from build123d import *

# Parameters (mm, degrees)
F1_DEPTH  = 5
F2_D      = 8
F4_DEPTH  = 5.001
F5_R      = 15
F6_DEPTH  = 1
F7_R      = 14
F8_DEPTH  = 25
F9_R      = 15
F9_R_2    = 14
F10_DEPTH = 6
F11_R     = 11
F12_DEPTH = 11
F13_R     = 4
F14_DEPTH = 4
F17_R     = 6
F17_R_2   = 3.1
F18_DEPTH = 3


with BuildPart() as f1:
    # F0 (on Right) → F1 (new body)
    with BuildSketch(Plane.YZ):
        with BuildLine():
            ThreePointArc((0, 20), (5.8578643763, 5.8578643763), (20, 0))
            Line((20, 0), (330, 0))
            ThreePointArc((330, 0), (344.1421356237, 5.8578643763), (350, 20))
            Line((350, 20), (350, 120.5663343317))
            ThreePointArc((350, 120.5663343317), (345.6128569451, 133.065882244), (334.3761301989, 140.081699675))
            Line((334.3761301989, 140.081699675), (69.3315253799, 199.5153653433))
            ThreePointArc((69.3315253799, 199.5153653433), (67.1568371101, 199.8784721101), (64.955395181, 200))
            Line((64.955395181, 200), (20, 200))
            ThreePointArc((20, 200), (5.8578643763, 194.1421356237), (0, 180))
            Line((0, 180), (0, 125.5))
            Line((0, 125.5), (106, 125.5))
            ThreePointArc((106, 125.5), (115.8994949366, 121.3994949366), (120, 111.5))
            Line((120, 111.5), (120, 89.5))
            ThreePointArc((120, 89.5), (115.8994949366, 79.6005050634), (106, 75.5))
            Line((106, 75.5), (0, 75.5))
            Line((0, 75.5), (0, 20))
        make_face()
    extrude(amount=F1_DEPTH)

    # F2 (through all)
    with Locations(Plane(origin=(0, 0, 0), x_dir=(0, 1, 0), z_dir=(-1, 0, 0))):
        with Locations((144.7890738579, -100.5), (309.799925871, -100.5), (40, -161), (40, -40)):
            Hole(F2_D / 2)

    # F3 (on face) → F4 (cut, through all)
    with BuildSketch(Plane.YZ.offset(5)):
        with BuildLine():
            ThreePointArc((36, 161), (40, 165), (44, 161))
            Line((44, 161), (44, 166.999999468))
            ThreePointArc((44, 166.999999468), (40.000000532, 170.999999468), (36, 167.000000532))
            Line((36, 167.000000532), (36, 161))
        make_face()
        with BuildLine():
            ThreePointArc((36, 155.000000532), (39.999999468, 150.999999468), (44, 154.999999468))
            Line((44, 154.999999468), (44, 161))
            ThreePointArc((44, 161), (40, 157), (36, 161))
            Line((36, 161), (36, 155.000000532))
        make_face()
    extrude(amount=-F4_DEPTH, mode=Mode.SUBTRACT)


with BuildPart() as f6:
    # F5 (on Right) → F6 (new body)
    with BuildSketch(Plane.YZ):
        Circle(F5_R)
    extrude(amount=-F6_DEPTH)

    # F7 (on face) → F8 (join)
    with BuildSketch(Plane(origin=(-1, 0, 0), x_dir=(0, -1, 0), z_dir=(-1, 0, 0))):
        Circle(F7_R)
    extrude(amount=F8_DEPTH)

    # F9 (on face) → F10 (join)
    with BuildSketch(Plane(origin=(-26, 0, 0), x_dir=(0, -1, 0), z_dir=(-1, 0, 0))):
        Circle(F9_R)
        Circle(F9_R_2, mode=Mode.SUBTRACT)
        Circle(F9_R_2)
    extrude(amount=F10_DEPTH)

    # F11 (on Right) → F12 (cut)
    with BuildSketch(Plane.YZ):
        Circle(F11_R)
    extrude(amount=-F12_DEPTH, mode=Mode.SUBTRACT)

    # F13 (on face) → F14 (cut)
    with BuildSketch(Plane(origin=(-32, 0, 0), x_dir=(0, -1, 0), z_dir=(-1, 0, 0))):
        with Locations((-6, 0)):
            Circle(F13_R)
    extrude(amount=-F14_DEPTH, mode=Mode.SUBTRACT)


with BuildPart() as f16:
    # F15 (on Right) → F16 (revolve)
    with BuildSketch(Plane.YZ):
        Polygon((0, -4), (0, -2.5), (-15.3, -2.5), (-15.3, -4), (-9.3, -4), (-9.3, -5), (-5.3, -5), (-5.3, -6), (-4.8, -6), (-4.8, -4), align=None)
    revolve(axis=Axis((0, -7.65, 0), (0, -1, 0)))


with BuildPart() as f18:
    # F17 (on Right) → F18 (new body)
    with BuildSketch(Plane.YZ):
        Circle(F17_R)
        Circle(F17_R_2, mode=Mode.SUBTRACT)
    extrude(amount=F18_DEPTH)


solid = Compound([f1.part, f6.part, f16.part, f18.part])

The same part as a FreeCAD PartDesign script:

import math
import FreeCAD as App
import Part
import Sketcher
from FreeCAD import Vector


def add_polygon(sketch, points):
    """Adds a closed chain of lines whose ends are joined by coincident constraints."""
    first, n = sketch.GeometryCount, len(points)
    for a, b in zip(points, points[1:] + points[:1]):
        sketch.addGeometry(Part.LineSegment(App.Vector(*a, 0), App.Vector(*b, 0)), False)
    for i in range(n):
        sketch.addConstraint(Sketcher.Constraint("Coincident", first + i, 2, first + (i + 1) % n, 1))

doc = App.newDocument("Part")
body = doc.addObject("PartDesign::Body", "Body")

# Sketch on YZ plane
sketch1 = doc.addObject("Sketcher::SketchObject", "Sketch")
body.addObject(sketch1)
sketch1.AttachmentSupport = (doc.YZ_Plane, [""])
sketch1.MapMode = "FlatFace"
sketch1.addGeometry(Part.ArcOfCircle(Part.Circle(Vector(20, 20, 0), Vector(0, 0, 1), 20), math.radians(180), math.radians(270)), False)
sketch1.addGeometry(Part.LineSegment(Vector(20, 0, 0), Vector(330, 0, 0)), False)
sketch1.addGeometry(Part.ArcOfCircle(Part.Circle(Vector(330, 20, 0), Vector(0, 0, 1), 20), math.radians(-90), math.radians(0)), False)
sketch1.addGeometry(Part.LineSegment(Vector(350, 20, 0), Vector(350, 120.566334, 0)), False)
sketch1.addGeometry(Part.ArcOfCircle(Part.Circle(Vector(330, 120.566334, 0), Vector(0, 0, 1), 20), math.radians(0), math.radians(77.361057)), False)
sketch1.addGeometry(Part.LineSegment(Vector(334.37613, 140.0817, 0), Vector(69.331525, 199.515365, 0)), False)
sketch1.addGeometry(Part.ArcOfCircle(Part.Circle(Vector(64.955395, 180, 0), Vector(0, 0, 1), 20), math.radians(77.361057), math.radians(90)), False)
sketch1.addGeometry(Part.LineSegment(Vector(64.955395, 200, 0), Vector(20, 200, 0)), False)
sketch1.addGeometry(Part.ArcOfCircle(Part.Circle(Vector(20, 180, 0), Vector(0, 0, 1), 20), math.radians(90), math.radians(180)), False)
sketch1.addGeometry(Part.LineSegment(Vector(0, 180, 0), Vector(0, 125.5, 0)), False)
sketch1.addGeometry(Part.LineSegment(Vector(0, 125.5, 0), Vector(106, 125.5, 0)), False)
sketch1.addGeometry(Part.ArcOfCircle(Part.Circle(Vector(106, 111.5, 0), Vector(0, 0, 1), 14), math.radians(0), math.radians(90)), False)
sketch1.addGeometry(Part.LineSegment(Vector(120, 111.5, 0), Vector(120, 89.5, 0)), False)
sketch1.addGeometry(Part.ArcOfCircle(Part.Circle(Vector(106, 89.5, 0), Vector(0, 0, 1), 14), math.radians(-90), math.radians(0)), False)
sketch1.addGeometry(Part.LineSegment(Vector(106, 75.5, 0), Vector(0, 75.5, 0)), False)
sketch1.addGeometry(Part.LineSegment(Vector(0, 75.5, 0), Vector(0, 20, 0)), False)
sketch1.addConstraint(Sketcher.Constraint("Tangent", 0, 2, 1, 1))
sketch1.addConstraint(Sketcher.Constraint("Tangent", 1, 2, 2, 1))
sketch1.addConstraint(Sketcher.Constraint("Tangent", 2, 2, 3, 1))
sketch1.addConstraint(Sketcher.Constraint("Tangent", 3, 2, 4, 1))
sketch1.addConstraint(Sketcher.Constraint("Tangent", 4, 2, 5, 1))
sketch1.addConstraint(Sketcher.Constraint("Tangent", 5, 2, 6, 1))
sketch1.addConstraint(Sketcher.Constraint("Tangent", 6, 2, 7, 1))
sketch1.addConstraint(Sketcher.Constraint("Tangent", 7, 2, 8, 1))
sketch1.addConstraint(Sketcher.Constraint("Tangent", 8, 2, 9, 1))
sketch1.addConstraint(Sketcher.Constraint("Coincident", 9, 2, 10, 1))
sketch1.addConstraint(Sketcher.Constraint("Tangent", 10, 2, 11, 2))
sketch1.addConstraint(Sketcher.Constraint("Tangent", 11, 1, 12, 1))
sketch1.addConstraint(Sketcher.Constraint("Tangent", 12, 2, 13, 2))
sketch1.addConstraint(Sketcher.Constraint("Tangent", 13, 1, 14, 1))
sketch1.addConstraint(Sketcher.Constraint("Coincident", 14, 2, 15, 1))
sketch1.addConstraint(Sketcher.Constraint("Tangent", 15, 2, 0, 1))
sketch1.addConstraint(Sketcher.Constraint("Horizontal", 1))
sketch1.addConstraint(Sketcher.Constraint("Vertical", 3))
sketch1.addConstraint(Sketcher.Constraint("Horizontal", 7))
sketch1.addConstraint(Sketcher.Constraint("Vertical", 9))
sketch1.addConstraint(Sketcher.Constraint("Horizontal", 10))
sketch1.addConstraint(Sketcher.Constraint("Vertical", 12))
sketch1.addConstraint(Sketcher.Constraint("Horizontal", 14))
sketch1.addConstraint(Sketcher.Constraint("Vertical", 15))
sketch1.addConstraint(Sketcher.Constraint("Equal", 0, 2))
sketch1.addConstraint(Sketcher.Constraint("Equal", 2, 4))
sketch1.addConstraint(Sketcher.Constraint("Equal", 4, 6))
sketch1.addConstraint(Sketcher.Constraint("Equal", 6, 8))
sketch1.addConstraint(Sketcher.Constraint("Equal", 11, 13))
sketch1.addConstraint(Sketcher.Constraint("PointOnObject", 0, 2, -1))
sketch1.addConstraint(Sketcher.Constraint("PointOnObject", 8, 2, -2))
sketch1.addConstraint(Sketcher.Constraint("PointOnObject", 14, 2, -2))
sketch1.addConstraint(Sketcher.Constraint("Radius", 0, 20.0))
sketch1.addConstraint(Sketcher.Constraint("Radius", 11, 14.0))
sketch1.addConstraint(Sketcher.Constraint("DistanceX", 1, 1, 1, 2, 310.0))
sketch1.addConstraint(Sketcher.Constraint("DistanceX", 10, 1, 10, 2, 106.0))
sketch1.addConstraint(Sketcher.Constraint("DistanceY", 12, 2, 12, 1, 22.0))
sketch1.addConstraint(Sketcher.Constraint("DistanceY", 9, 2, 9, 1, 54.5))
sketch1.addConstraint(Sketcher.Constraint("DistanceY", 15, 2, 15, 1, 55.5))
sketch1.addConstraint(Sketcher.Constraint("DistanceY", -1, 1, 4, 2, 140.0817))
sketch1.addConstraint(Sketcher.Constraint("DistanceX", 7, 2, 7, 1, 44.955395))
pad1 = doc.addObject("PartDesign::Pad", "Pad")
body.addObject(pad1)
pad1.Profile = sketch1
pad1.Length = 5

# Sketch on YZ plane
sketch2 = doc.addObject("Sketcher::SketchObject", "Sketch001")
body.addObject(sketch2)
sketch2.AttachmentSupport = (doc.YZ_Plane, [""])
sketch2.MapMode = "FlatFace"
sketch2.addGeometry(Part.Circle(Vector(144.789074, 100.5, 0), Vector(0, 0, 1), 4), False)
sketch2.addGeometry(Part.Circle(Vector(309.799926, 100.5, 0), Vector(0, 0, 1), 4), False)
sketch2.addGeometry(Part.Circle(Vector(40, 161, 0), Vector(0, 0, 1), 4), False)
sketch2.addGeometry(Part.Circle(Vector(40, 40, 0), Vector(0, 0, 1), 4), False)
sketch2.addConstraint(Sketcher.Constraint("Equal", 0, 1))
sketch2.addConstraint(Sketcher.Constraint("Equal", 1, 2))
sketch2.addConstraint(Sketcher.Constraint("Equal", 2, 3))
sketch2.addConstraint(Sketcher.Constraint("Horizontal", 0, 3, 1, 3))
sketch2.addConstraint(Sketcher.Constraint("Vertical", 2, 3, 3, 3))
sketch2.addConstraint(Sketcher.Constraint("Diameter", 0, 8.0))
sketch2.addConstraint(Sketcher.Constraint("DistanceX", -1, 1, 2, 3, 40.0))
sketch2.addConstraint(Sketcher.Constraint("DistanceY", -1, 1, 2, 3, 161.0))
sketch2.addConstraint(Sketcher.Constraint("DistanceY", -1, 1, 3, 3, 40.0))
sketch2.addConstraint(Sketcher.Constraint("DistanceY", -1, 1, 0, 3, 100.5))
sketch2.addConstraint(Sketcher.Constraint("DistanceX", -1, 1, 0, 3, 144.789074))
sketch2.addConstraint(Sketcher.Constraint("DistanceX", -1, 1, 1, 3, 309.799926))
doc.recompute()
hole = doc.addObject("PartDesign::Hole", "Hole")
body.addObject(hole)
hole.Profile = sketch2
hole.ThreadType = "None"
hole.Diameter = 8
hole.DepthType = "ThroughAll"
hole.Reversed = True

# Sketch on YZ plane
sketch3 = doc.addObject("Sketcher::SketchObject", "Sketch002")
body.addObject(sketch3)
sketch3.AttachmentSupport = (doc.YZ_Plane, [""])
sketch3.MapMode = "FlatFace"
sketch3.AttachmentOffset = App.Placement(Vector(0, 0, 5), App.Rotation())
sketch3.addGeometry(Part.ArcOfCircle(Part.Circle(Vector(40, 161, 0), Vector(0, 0, 1), 4), math.radians(0), math.radians(180)), False)
sketch3.addGeometry(Part.LineSegment(Vector(44, 161, 0), Vector(44, 166.999999, 0)), False)
sketch3.addGeometry(Part.ArcOfCircle(Part.Circle(Vector(40, 166.999999, 0), Vector(0, 0, 1), 4), math.radians(0), math.radians(179.999985)), False)
sketch3.addGeometry(Part.LineSegment(Vector(36, 167.000001, 0), Vector(36, 161, 0)), False)
sketch3.addGeometry(Part.ArcOfCircle(Part.Circle(Vector(40, 154.999999, 0), Vector(0, 0, 1), 4), math.radians(179.999985), math.radians(360)), False)
sketch3.addGeometry(Part.LineSegment(Vector(44, 154.999999, 0), Vector(44, 161, 0)), False)
sketch3.addGeometry(Part.ArcOfCircle(Part.Circle(Vector(40, 161, 0), Vector(0, 0, 1), 4), math.radians(180), math.radians(360)), False)
sketch3.addGeometry(Part.LineSegment(Vector(36, 161, 0), Vector(36, 155.000001, 0)), False)
sketch3.addConstraint(Sketcher.Constraint("Tangent", 0, 1, 1, 1))
sketch3.addConstraint(Sketcher.Constraint("Tangent", 1, 2, 2, 1))
sketch3.addConstraint(Sketcher.Constraint("Tangent", 2, 2, 3, 1))
sketch3.addConstraint(Sketcher.Constraint("Tangent", 3, 2, 0, 2))
sketch3.addConstraint(Sketcher.Constraint("Tangent", 4, 2, 5, 1))
sketch3.addConstraint(Sketcher.Constraint("Tangent", 5, 2, 6, 2))
sketch3.addConstraint(Sketcher.Constraint("Tangent", 6, 1, 7, 1))
sketch3.addConstraint(Sketcher.Constraint("Tangent", 7, 2, 4, 1))
sketch3.addConstraint(Sketcher.Constraint("Vertical", 1))
sketch3.addConstraint(Sketcher.Constraint("Vertical", 3))
sketch3.addConstraint(Sketcher.Constraint("Vertical", 5))
sketch3.addConstraint(Sketcher.Constraint("Vertical", 7))
sketch3.addConstraint(Sketcher.Constraint("Coincident", 6, 3, 0, 3))
sketch3.addConstraint(Sketcher.Constraint("Equal", 2, 4))
sketch3.addConstraint(Sketcher.Constraint("Equal", 3, 5))
sketch3.addConstraint(Sketcher.Constraint("Radius", 0, 4.0))
sketch3.addConstraint(Sketcher.Constraint("DistanceY", 1, 1, 1, 2, 5.999999))
sketch3.addConstraint(Sketcher.Constraint("DistanceX", -1, 1, 0, 3, 40.0))
sketch3.addConstraint(Sketcher.Constraint("DistanceY", -1, 1, 0, 3, 161.0))
pocket1 = doc.addObject("PartDesign::Pocket", "Pocket")
body.addObject(pocket1)
pocket1.Profile = sketch3
pocket1.Type = "ThroughAll"
body2 = doc.addObject("PartDesign::Body", "Body001")

# Sketch on YZ plane
sketch4 = doc.addObject("Sketcher::SketchObject", "Sketch003")
body2.addObject(sketch4)
sketch4.AttachmentSupport = (doc.getObject("YZ_Plane001"), [""])
sketch4.MapMode = "FlatFace"
sketch4.addGeometry(Part.Circle(Vector(0, 0, 0), Vector(0, 0, 1), 15), False)
sketch4.addConstraint(Sketcher.Constraint("Coincident", 0, 3, -1, 1))
sketch4.addConstraint(Sketcher.Constraint("Diameter", 0, 30.0))
pad2 = doc.addObject("PartDesign::Pad", "Pad001")
body2.addObject(pad2)
pad2.Profile = sketch4
pad2.Length = 1
pad2.Reversed = True

# Sketch on YZ plane
sketch5 = doc.addObject("Sketcher::SketchObject", "Sketch004")
body2.addObject(sketch5)
sketch5.AttachmentSupport = (doc.getObject("YZ_Plane001"), [""])
sketch5.MapMode = "FlatFace"
sketch5.AttachmentOffset = App.Placement(Vector(0, 0, -1), App.Rotation())
sketch5.addGeometry(Part.Circle(Vector(0, 0, 0), Vector(0, 0, 1), 14), False)
sketch5.addConstraint(Sketcher.Constraint("Coincident", 0, 3, -1, 1))
sketch5.addConstraint(Sketcher.Constraint("Diameter", 0, 28.0))
pad3 = doc.addObject("PartDesign::Pad", "Pad002")
body2.addObject(pad3)
pad3.Profile = sketch5
pad3.Length = 25
pad3.Reversed = True

# Sketch on YZ plane
sketch6 = doc.addObject("Sketcher::SketchObject", "Sketch005")
body2.addObject(sketch6)
sketch6.AttachmentSupport = (doc.getObject("YZ_Plane001"), [""])
sketch6.MapMode = "FlatFace"
sketch6.AttachmentOffset = App.Placement(Vector(0, 0, -26), App.Rotation())
sketch6.addGeometry(Part.Circle(Vector(0, 0, 0), Vector(0, 0, 1), 15), False)
sketch6.addConstraint(Sketcher.Constraint("Coincident", 0, 3, -1, 1))
sketch6.addConstraint(Sketcher.Constraint("Diameter", 0, 30.0))
pad4 = doc.addObject("PartDesign::Pad", "Pad003")
body2.addObject(pad4)
pad4.Profile = sketch6
pad4.Length = 6
pad4.Reversed = True

# Sketch on YZ plane
sketch7 = doc.addObject("Sketcher::SketchObject", "Sketch006")
body2.addObject(sketch7)
sketch7.AttachmentSupport = (doc.getObject("YZ_Plane001"), [""])
sketch7.MapMode = "FlatFace"
sketch7.addGeometry(Part.Circle(Vector(0, 0, 0), Vector(0, 0, 1), 11), False)
sketch7.addConstraint(Sketcher.Constraint("Coincident", 0, 3, -1, 1))
sketch7.addConstraint(Sketcher.Constraint("Diameter", 0, 22.0))
pocket2 = doc.addObject("PartDesign::Pocket", "Pocket001")
body2.addObject(pocket2)
pocket2.Profile = sketch7
pocket2.Length = 11

# Sketch on YZ plane
sketch8 = doc.addObject("Sketcher::SketchObject", "Sketch007")
body2.addObject(sketch8)
sketch8.AttachmentSupport = (doc.getObject("YZ_Plane001"), [""])
sketch8.MapMode = "FlatFace"
sketch8.AttachmentOffset = App.Placement(Vector(0, 0, -32), App.Rotation())
sketch8.addGeometry(Part.Circle(Vector(6, 0, 0), Vector(0, 0, 1), 4), False)
sketch8.addConstraint(Sketcher.Constraint("PointOnObject", 0, 3, -1))
sketch8.addConstraint(Sketcher.Constraint("Diameter", 0, 8.0))
sketch8.addConstraint(Sketcher.Constraint("DistanceX", -1, 1, 0, 3, 6.0))
pocket3 = doc.addObject("PartDesign::Pocket", "Pocket002")
body2.addObject(pocket3)
pocket3.Profile = sketch8
pocket3.Length = 4
pocket3.Reversed = True
body3 = doc.addObject("PartDesign::Body", "Body002")

# Sketch on YZ plane
sketch9 = doc.addObject("Sketcher::SketchObject", "Sketch008")
body3.addObject(sketch9)
sketch9.AttachmentSupport = (doc.getObject("YZ_Plane002"), [""])
sketch9.MapMode = "FlatFace"
add_polygon(sketch9, [(0, -4), (0, -2.5), (-15.3, -2.5), (-15.3, -4), (-9.3, -4), (-9.3, -5), (-5.3, -5), (-5.3, -6), (-4.8, -6), (-4.8, -4)])  # lines 0-9
sketch9.addConstraint(Sketcher.Constraint("Vertical", 0))
sketch9.addConstraint(Sketcher.Constraint("Horizontal", 1))
sketch9.addConstraint(Sketcher.Constraint("Vertical", 2))
sketch9.addConstraint(Sketcher.Constraint("Horizontal", 3))
sketch9.addConstraint(Sketcher.Constraint("Vertical", 4))
sketch9.addConstraint(Sketcher.Constraint("Horizontal", 5))
sketch9.addConstraint(Sketcher.Constraint("Vertical", 6))
sketch9.addConstraint(Sketcher.Constraint("Horizontal", 7))
sketch9.addConstraint(Sketcher.Constraint("Vertical", 8))
sketch9.addConstraint(Sketcher.Constraint("Horizontal", 9))
sketch9.addConstraint(Sketcher.Constraint("PointOnObject", 0, 2, -2))
sketch9.addConstraint(Sketcher.Constraint("Horizontal", 3, 2, 8, 2))
sketch9.addConstraint(Sketcher.Constraint("Equal", 4, 6))
sketch9.addConstraint(Sketcher.Constraint("DistanceX", 3, 1, 3, 2, 6.0))
sketch9.addConstraint(Sketcher.Constraint("DistanceX", 5, 1, 5, 2, 4.0))
sketch9.addConstraint(Sketcher.Constraint("DistanceY", 4, 2, 4, 1, 1.0))
sketch9.addConstraint(Sketcher.Constraint("DistanceX", 1, 2, 1, 1, 15.3))
sketch9.addConstraint(Sketcher.Constraint("DistanceX", 7, 1, 7, 2, 0.5))
sketch9.addConstraint(Sketcher.Constraint("DistanceY", 0, 1, 0, 2, 1.5))
sketch9.addConstraint(Sketcher.Constraint("DistanceY", 2, 2, -1, 1, 4.0))
revolution = doc.addObject("PartDesign::Revolution", "Revolution")
body3.addObject(revolution)
revolution.Profile = sketch9
revolution.ReferenceAxis = (sketch9, ["H_Axis"])
revolution.Angle = 360
body4 = doc.addObject("PartDesign::Body", "Body003")

# Sketch on YZ plane
sketch10 = doc.addObject("Sketcher::SketchObject", "Sketch009")
body4.addObject(sketch10)
sketch10.AttachmentSupport = (doc.getObject("YZ_Plane003"), [""])
sketch10.MapMode = "FlatFace"
sketch10.addGeometry(Part.Circle(Vector(0, 0, 0), Vector(0, 0, 1), 6), False)
sketch10.addGeometry(Part.Circle(Vector(0, 0, 0), Vector(0, 0, 1), 3.1), False)
sketch10.addConstraint(Sketcher.Constraint("Coincident", 0, 3, -1, 1))
sketch10.addConstraint(Sketcher.Constraint("Coincident", 1, 3, -1, 1))
sketch10.addConstraint(Sketcher.Constraint("Diameter", 0, 12.0))
sketch10.addConstraint(Sketcher.Constraint("Diameter", 1, 6.2))
pad5 = doc.addObject("PartDesign::Pad", "Pad004")
body4.addObject(pad5)
pad5.Profile = sketch10
pad5.Length = 3

doc.recompute()
